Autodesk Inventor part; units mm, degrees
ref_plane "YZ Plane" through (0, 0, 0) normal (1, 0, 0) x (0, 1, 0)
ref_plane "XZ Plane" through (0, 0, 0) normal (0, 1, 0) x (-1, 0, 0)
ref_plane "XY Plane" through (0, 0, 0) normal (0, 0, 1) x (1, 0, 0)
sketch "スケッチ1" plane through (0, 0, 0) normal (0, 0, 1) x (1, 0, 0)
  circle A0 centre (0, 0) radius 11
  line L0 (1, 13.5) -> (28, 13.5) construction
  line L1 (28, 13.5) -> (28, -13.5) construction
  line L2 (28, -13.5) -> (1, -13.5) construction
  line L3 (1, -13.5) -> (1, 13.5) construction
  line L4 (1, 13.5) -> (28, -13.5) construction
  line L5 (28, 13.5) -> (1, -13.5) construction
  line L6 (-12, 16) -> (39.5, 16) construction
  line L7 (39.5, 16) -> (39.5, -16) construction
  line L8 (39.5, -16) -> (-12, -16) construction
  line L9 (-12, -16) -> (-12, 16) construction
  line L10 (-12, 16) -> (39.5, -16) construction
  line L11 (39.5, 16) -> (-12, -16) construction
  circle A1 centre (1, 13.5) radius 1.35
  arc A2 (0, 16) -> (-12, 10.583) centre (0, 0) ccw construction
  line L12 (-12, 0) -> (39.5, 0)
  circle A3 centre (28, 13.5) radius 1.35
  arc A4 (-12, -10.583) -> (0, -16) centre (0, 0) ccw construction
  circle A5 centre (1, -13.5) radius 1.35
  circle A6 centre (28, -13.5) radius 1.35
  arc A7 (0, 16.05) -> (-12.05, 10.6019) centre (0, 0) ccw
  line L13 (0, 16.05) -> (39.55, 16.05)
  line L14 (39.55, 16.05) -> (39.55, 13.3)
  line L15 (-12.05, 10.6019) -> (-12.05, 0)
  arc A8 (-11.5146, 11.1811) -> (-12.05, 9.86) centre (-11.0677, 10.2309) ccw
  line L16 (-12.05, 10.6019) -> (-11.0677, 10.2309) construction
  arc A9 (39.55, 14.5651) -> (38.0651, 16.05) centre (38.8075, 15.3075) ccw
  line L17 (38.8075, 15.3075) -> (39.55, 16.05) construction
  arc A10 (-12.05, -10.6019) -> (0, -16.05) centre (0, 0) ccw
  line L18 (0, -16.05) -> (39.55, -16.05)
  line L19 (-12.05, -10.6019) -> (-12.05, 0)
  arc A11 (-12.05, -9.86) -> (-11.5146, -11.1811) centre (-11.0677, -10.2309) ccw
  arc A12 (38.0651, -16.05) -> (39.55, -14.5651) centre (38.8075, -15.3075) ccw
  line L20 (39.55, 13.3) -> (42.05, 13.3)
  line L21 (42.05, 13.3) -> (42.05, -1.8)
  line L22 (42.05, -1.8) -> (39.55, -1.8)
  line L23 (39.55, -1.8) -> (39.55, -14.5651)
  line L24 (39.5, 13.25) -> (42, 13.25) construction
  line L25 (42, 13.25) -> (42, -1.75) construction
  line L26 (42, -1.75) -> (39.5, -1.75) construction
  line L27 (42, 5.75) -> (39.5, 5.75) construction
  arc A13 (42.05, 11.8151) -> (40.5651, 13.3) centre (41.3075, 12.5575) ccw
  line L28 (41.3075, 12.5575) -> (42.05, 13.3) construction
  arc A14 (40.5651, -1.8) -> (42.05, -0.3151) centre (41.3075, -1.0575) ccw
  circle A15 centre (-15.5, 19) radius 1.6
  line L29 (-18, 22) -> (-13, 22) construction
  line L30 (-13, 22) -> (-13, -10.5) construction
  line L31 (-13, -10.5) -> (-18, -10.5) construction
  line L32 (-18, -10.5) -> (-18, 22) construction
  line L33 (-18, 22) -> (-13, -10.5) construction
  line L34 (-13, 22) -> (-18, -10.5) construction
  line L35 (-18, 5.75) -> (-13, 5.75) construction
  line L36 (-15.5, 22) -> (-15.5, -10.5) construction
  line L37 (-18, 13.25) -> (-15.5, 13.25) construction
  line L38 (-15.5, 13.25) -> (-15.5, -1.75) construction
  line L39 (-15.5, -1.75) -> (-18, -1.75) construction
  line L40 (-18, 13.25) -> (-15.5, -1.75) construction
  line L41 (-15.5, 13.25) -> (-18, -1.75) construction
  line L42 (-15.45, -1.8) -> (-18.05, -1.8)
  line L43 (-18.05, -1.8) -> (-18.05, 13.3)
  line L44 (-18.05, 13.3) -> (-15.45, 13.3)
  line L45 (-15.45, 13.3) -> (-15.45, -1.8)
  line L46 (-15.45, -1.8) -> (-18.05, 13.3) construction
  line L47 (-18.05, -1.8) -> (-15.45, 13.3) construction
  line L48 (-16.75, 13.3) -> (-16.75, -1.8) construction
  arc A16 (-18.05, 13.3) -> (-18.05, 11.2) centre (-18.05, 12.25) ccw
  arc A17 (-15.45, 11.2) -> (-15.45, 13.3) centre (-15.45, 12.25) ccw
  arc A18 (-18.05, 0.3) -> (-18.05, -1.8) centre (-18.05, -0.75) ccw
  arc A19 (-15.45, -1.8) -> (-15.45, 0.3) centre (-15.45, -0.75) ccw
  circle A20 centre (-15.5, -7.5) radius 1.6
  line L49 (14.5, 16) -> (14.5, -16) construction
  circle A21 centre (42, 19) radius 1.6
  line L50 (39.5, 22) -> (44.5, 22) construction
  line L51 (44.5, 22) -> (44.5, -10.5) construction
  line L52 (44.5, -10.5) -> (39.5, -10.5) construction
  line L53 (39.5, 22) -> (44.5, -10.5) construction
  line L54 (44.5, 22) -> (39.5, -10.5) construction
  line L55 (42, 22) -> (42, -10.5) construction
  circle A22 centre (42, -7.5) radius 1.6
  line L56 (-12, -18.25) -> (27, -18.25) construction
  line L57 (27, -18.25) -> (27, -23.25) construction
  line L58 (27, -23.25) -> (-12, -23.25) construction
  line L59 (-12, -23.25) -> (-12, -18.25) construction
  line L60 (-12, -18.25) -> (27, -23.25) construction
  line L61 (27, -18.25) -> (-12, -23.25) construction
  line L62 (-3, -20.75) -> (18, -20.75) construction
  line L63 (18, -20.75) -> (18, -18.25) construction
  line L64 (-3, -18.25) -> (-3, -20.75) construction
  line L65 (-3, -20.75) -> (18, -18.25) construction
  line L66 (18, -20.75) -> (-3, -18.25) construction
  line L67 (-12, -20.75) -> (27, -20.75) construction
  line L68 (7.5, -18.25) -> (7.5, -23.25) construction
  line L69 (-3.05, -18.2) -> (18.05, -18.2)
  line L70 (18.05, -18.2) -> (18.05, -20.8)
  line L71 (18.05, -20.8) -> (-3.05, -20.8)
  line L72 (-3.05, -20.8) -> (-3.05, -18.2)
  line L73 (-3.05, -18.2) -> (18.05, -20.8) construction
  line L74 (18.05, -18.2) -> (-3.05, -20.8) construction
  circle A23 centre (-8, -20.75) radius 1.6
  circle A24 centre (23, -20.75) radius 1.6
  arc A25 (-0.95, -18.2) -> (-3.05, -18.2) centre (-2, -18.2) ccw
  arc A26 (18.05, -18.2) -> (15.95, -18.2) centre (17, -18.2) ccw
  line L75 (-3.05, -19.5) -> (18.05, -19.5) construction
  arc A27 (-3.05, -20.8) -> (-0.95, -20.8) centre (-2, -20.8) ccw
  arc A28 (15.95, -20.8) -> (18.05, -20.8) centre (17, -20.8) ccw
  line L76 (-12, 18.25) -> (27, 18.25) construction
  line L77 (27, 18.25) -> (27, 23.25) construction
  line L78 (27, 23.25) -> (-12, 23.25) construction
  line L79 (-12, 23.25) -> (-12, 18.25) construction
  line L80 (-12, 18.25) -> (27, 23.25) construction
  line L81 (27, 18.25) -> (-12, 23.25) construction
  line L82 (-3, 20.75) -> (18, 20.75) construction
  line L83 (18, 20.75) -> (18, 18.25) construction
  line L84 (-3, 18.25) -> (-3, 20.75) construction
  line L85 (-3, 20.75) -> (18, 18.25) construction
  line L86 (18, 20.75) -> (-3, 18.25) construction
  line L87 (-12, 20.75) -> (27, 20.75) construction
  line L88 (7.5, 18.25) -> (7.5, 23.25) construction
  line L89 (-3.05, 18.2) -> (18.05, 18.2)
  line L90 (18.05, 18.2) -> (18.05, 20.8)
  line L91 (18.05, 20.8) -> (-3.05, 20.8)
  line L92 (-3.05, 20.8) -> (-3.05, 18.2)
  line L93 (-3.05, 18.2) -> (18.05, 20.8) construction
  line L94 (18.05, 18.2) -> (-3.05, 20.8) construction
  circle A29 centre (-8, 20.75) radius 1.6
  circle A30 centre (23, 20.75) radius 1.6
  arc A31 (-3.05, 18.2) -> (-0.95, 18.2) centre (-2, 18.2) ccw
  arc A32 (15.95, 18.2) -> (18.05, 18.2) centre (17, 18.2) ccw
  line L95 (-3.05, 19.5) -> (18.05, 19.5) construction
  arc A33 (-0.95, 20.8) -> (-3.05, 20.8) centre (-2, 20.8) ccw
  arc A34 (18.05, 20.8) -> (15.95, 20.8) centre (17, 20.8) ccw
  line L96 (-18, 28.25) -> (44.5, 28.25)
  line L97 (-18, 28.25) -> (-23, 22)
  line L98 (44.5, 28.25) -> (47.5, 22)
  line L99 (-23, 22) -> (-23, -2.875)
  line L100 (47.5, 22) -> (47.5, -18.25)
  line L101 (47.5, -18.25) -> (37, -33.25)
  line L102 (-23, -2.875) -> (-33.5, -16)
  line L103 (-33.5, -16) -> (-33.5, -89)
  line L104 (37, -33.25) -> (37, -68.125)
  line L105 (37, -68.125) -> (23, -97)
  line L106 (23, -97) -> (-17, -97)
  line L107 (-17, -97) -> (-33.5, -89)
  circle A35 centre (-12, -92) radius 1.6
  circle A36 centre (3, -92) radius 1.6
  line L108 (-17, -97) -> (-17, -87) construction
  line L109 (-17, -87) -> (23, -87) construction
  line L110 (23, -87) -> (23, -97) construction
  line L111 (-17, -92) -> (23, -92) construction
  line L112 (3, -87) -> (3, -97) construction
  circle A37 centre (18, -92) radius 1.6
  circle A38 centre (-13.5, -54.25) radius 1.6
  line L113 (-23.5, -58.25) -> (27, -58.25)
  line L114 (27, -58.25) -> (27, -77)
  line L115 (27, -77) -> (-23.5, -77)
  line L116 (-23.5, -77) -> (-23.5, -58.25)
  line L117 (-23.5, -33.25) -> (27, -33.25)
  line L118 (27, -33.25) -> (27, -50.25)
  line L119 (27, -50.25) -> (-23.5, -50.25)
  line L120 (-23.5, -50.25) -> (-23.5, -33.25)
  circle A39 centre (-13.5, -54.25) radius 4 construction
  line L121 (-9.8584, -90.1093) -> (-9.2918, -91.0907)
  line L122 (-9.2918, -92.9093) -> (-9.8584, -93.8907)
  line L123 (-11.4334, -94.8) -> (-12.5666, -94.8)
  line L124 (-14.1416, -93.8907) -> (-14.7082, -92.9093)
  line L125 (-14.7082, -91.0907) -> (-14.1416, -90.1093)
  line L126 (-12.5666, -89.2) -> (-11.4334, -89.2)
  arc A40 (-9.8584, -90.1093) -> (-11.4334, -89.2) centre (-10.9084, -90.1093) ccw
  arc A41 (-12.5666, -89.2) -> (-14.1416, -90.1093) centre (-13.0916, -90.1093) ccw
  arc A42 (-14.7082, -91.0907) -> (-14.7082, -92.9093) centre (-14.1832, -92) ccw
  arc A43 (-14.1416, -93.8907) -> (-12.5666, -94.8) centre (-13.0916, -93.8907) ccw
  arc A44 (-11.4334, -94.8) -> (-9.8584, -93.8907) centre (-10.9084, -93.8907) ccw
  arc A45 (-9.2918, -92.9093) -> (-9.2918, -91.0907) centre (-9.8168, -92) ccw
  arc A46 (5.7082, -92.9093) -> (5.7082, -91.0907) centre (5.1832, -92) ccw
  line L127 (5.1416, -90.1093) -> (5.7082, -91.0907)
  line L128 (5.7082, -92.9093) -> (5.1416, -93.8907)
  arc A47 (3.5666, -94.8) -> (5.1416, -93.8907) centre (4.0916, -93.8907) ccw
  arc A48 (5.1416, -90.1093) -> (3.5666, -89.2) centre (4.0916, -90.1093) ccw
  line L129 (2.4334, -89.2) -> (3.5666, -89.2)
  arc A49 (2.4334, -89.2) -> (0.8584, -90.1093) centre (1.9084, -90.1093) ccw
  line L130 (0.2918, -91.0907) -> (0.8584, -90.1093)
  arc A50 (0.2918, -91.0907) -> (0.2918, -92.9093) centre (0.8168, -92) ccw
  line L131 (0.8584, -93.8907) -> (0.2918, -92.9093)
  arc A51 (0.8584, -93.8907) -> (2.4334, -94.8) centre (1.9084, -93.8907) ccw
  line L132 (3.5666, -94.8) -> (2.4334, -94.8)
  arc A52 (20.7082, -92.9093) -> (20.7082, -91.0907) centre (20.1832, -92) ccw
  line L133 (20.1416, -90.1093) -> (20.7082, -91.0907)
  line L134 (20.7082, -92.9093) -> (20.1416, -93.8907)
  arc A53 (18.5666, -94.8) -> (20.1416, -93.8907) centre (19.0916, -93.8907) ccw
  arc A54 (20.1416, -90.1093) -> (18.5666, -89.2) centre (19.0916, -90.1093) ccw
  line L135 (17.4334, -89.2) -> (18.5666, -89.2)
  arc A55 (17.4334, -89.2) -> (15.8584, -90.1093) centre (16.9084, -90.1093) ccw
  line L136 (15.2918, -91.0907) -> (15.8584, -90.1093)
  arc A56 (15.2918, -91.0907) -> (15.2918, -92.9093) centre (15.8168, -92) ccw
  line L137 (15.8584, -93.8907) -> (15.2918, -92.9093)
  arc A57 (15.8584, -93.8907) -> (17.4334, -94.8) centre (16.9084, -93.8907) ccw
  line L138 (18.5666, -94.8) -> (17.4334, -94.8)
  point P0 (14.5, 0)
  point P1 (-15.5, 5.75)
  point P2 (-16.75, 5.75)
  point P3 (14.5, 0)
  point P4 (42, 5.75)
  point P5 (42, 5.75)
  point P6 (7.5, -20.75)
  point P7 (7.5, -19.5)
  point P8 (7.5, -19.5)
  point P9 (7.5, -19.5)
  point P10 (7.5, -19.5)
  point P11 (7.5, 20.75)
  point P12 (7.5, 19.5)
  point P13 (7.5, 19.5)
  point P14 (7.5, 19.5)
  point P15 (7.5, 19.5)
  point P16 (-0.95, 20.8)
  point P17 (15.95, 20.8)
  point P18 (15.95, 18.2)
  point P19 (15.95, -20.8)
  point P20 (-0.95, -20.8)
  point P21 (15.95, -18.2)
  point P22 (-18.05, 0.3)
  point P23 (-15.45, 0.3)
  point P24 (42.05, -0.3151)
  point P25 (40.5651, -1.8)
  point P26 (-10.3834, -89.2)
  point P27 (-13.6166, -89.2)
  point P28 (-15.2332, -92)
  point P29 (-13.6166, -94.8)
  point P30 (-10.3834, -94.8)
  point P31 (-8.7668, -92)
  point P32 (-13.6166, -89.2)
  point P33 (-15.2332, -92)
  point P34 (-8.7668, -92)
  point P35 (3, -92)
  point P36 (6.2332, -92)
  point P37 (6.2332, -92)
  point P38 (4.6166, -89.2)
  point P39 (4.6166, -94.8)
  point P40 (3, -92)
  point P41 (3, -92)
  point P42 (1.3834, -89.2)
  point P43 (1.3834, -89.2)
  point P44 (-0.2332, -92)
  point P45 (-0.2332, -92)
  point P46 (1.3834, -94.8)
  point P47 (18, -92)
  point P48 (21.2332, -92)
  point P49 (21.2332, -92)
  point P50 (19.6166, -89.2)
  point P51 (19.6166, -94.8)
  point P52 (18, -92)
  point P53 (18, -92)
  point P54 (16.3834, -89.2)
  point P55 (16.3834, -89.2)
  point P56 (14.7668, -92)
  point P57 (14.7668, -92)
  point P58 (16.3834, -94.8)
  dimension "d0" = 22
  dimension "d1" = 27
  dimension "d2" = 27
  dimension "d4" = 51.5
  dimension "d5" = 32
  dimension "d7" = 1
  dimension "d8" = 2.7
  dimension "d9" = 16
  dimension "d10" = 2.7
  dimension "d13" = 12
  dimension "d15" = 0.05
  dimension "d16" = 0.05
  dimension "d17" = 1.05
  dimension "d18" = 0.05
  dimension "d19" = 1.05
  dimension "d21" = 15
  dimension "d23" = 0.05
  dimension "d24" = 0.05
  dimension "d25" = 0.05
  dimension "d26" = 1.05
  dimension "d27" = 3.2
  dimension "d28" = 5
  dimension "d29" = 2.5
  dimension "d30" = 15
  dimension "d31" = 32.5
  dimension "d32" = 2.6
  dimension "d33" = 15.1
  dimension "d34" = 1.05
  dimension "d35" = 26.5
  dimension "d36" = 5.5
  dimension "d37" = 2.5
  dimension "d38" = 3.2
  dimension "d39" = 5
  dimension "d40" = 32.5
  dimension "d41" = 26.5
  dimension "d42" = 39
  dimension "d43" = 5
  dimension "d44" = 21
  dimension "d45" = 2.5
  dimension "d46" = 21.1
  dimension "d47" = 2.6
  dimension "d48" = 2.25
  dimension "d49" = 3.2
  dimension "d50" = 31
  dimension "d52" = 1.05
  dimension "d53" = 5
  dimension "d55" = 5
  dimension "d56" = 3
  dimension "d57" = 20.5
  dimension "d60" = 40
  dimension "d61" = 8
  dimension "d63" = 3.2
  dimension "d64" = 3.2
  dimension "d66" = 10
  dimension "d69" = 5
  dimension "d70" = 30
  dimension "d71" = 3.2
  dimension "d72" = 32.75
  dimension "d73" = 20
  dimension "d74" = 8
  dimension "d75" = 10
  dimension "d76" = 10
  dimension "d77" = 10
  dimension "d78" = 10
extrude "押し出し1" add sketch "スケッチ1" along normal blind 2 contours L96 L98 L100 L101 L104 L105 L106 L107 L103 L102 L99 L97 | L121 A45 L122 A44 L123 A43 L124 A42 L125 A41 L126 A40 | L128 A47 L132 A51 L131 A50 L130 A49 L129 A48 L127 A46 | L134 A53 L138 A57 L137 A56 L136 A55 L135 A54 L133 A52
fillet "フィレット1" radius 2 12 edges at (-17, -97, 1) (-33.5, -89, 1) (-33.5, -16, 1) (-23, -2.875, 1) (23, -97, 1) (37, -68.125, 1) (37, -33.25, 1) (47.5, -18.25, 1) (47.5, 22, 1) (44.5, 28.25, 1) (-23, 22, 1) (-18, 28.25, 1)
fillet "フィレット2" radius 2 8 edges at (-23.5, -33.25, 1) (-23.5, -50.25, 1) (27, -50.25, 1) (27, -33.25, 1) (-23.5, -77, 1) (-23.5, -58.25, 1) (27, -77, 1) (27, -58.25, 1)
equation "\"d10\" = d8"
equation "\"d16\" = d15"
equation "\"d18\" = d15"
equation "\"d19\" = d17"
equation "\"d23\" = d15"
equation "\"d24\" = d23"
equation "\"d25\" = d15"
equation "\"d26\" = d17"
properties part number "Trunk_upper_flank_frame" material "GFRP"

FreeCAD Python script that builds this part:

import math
import FreeCAD as App
import Part
import Sketcher
Q = App.Units.Quantity


def edges_at(feature, points):
    """Names of the edges that pass closest to the given points."""
    edges = feature.Shape.Edges
    near = lambda p: min(range(len(edges)), key=lambda i: edges[i].distToShape(Part.Vertex(*p))[0])
    return sorted({f"Edge{near(p) + 1}" for p in points})


def add_polygon(sketch, points):
    """Adds a closed chain of lines whose ends are joined by coincident constraints."""
    first, n = sketch.GeometryCount, len(points)
    for a, b in zip(points, points[1:] + points[:1]):
        sketch.addGeometry(Part.LineSegment(App.Vector(*a, 0), App.Vector(*b, 0)), False)
    for i in range(n):
        sketch.addConstraint(Sketcher.Constraint("Coincident", first + i, 2, first + (i + 1) % n, 1))

doc = App.newDocument("Part")
body = doc.addObject("PartDesign::Body", "Body")

# Sketch on XY plane
sketch1 = doc.addObject("Sketcher::SketchObject", "Sketch")
body.addObject(sketch1)
sketch1.AttachmentSupport = (doc.XY_Plane, [""])
sketch1.MapMode = "FlatFace"
add_polygon(sketch1, [(44.5, 28.2), (-18, 28.2), (-23, 22), (-23, -2.9), (-33.5, -16), (-33.5, -89), (-17, -97), (23, -97), (37, -68.1), (37, -33.2), (47.5, -18.2), (47.5, 22)])  # lines 0-11
add_polygon(sketch1, [(-23.5, -77), (-23.5, -58.2), (27, -58.2), (27, -77)])  # lines 12-15
sketch1.addGeometry(Part.Circle(App.Vector(-13.5, -54.2, 0), App.Vector(0, 0, 1), 1.6), False)  # 16
add_polygon(sketch1, [(-23.5, -50.2), (-23.5, -33.2), (27, -33.2), (27, -50.2)])  # lines 17-20
sketch1.addGeometry(Part.Circle(App.Vector(-15.5, -7.5, 0), App.Vector(0, 0, 1), 1.6), False)  # 21
sketch1.addGeometry(Part.Circle(App.Vector(-8, -20.8, 0), App.Vector(0, 0, 1), 1.6), False)  # 22
sketch1.addGeometry(Part.ArcOfCircle(Part.Circle(App.Vector(-15.4, -0.8, 0), App.Vector(0, 0, 1), 1.1), math.radians(-90), math.radians(90)), False)  # 23
sketch1.addGeometry(Part.LineSegment(App.Vector(-15.4, -1.8, 0), App.Vector(-18.1, -1.8, 0)), False)  # 24
sketch1.addGeometry(Part.ArcOfCircle(Part.Circle(App.Vector(-18.1, -0.8, 0), App.Vector(0, 0, 1), 1.1), math.radians(90), math.radians(270)), False)  # 25
sketch1.addGeometry(Part.LineSegment(App.Vector(-18.1, 0.3, 0), App.Vector(-18.1, 11.2, 0)), False)  # 26
sketch1.addGeometry(Part.ArcOfCircle(Part.Circle(App.Vector(-18.1, 12.2, 0), App.Vector(0, 0, 1), 1.1), math.radians(90), math.radians(270)), False)  # 27
sketch1.addGeometry(Part.LineSegment(App.Vector(-18.1, 13.3, 0), App.Vector(-15.4, 13.3, 0)), False)  # 28
sketch1.addGeometry(Part.ArcOfCircle(Part.Circle(App.Vector(-15.4, 12.2, 0), App.Vector(0, 0, 1), 1.1), math.radians(-90), math.radians(90)), False)  # 29
sketch1.addGeometry(Part.LineSegment(App.Vector(-15.4, 11.2, 0), App.Vector(-15.4, 0.3, 0)), False)  # 30
sketch1.addGeometry(Part.Circle(App.Vector(-15.5, 19, 0), App.Vector(0, 0, 1), 1.6), False)  # 31
sketch1.addGeometry(Part.Circle(App.Vector(-8, 20.8, 0), App.Vector(0, 0, 1), 1.6), False)  # 32
sketch1.addGeometry(Part.LineSegment(App.Vector(-3, -20.8, 0), App.Vector(-3, -18.2, 0)), False)  # 33
sketch1.addGeometry(Part.ArcOfCircle(Part.Circle(App.Vector(-2, -18.2, 0), App.Vector(0, 0, 1), 1.1), math.radians(0), math.radians(180)), False)  # 34
sketch1.addGeometry(Part.LineSegment(App.Vector(-0.9, -18.2, 0), App.Vector(15.9, -18.2, 0)), False)  # 35
sketch1.addGeometry(Part.ArcOfCircle(Part.Circle(App.Vector(17, -18.2, 0), App.Vector(0, 0, 1), 1.1), math.radians(0), math.radians(180)), False)  # 36
sketch1.addGeometry(Part.LineSegment(App.Vector(18.1, -18.2, 0), App.Vector(18.1, -20.8, 0)), False)  # 37
sketch1.addGeometry(Part.ArcOfCircle(Part.Circle(App.Vector(17, -20.8, 0), App.Vector(0, 0, 1), 1.1), math.radians(180), math.radians(360)), False)  # 38
sketch1.addGeometry(Part.LineSegment(App.Vector(15.9, -20.8, 0), App.Vector(-0.9, -20.8, 0)), False)  # 39
sketch1.addGeometry(Part.ArcOfCircle(Part.Circle(App.Vector(-2, -20.8, 0), App.Vector(0, 0, 1), 1), math.radians(180), math.radians(360)), False)  # 40
sketch1.addGeometry(Part.Circle(App.Vector(23, -20.8, 0), App.Vector(0, 0, 1), 1.6), False)  # 41
sketch1.addGeometry(Part.Circle(App.Vector(42, -7.5, 0), App.Vector(0, 0, 1), 1.6), False)  # 42
sketch1.addGeometry(Part.ArcOfCircle(Part.Circle(App.Vector(0, 0, 0), App.Vector(0, 0, 1), 16.1), math.radians(90), math.radians(136)), False)  # 43
sketch1.addGeometry(Part.LineSegment(App.Vector(0, 16.1, 0), App.Vector(38.1, 16.1, 0)), False)  # 44
sketch1.addGeometry(Part.ArcOfCircle(Part.Circle(App.Vector(38.8, 15.3, 0), App.Vector(0, 0, 1), 1), math.radians(-45), math.radians(135)), False)  # 45
sketch1.addGeometry(Part.LineSegment(App.Vector(39.5, 14.6, 0), App.Vector(39.5, 13.3, 0)), False)  # 46
sketch1.addGeometry(Part.LineSegment(App.Vector(39.5, 13.3, 0), App.Vector(40.6, 13.3, 0)), False)  # 47
sketch1.addGeometry(Part.ArcOfCircle(Part.Circle(App.Vector(41.3, 12.6, 0), App.Vector(0, 0, 1), 1), math.radians(-45), math.radians(135)), False)  # 48
sketch1.addGeometry(Part.LineSegment(App.Vector(42, 11.8, 0), App.Vector(42, -0.3, 0)), False)  # 49
sketch1.addGeometry(Part.ArcOfCircle(Part.Circle(App.Vector(41.3, -1.1, 0), App.Vector(0, 0, 1), 1), math.radians(-135), math.radians(45)), False)  # 50
sketch1.addGeometry(Part.LineSegment(App.Vector(40.6, -1.8, 0), App.Vector(39.5, -1.8, 0)), False)  # 51
sketch1.addGeometry(Part.LineSegment(App.Vector(39.5, -1.8, 0), App.Vector(39.5, -14.6, 0)), False)  # 52
sketch1.addGeometry(Part.ArcOfCircle(Part.Circle(App.Vector(38.8, -15.3, 0), App.Vector(0, 0, 1), 1), math.radians(-135), math.radians(45)), False)  # 53
sketch1.addGeometry(Part.LineSegment(App.Vector(38.1, -16.1, 0), App.Vector(0, -16.1, 0)), False)  # 54
sketch1.addGeometry(Part.ArcOfCircle(Part.Circle(App.Vector(0, 0, 0), App.Vector(0, 0, 1), 16.1), math.radians(-136), math.radians(-90)), False)  # 55
sketch1.addGeometry(Part.ArcOfCircle(Part.Circle(App.Vector(-11.1, -10.2, 0), App.Vector(0, 0, 1), 1), math.radians(159), math.radians(245)), False)  # 56
sketch1.addGeometry(Part.LineSegment(App.Vector(-12.1, -9.9, 0), App.Vector(-12.1, 9.9, 0)), False)  # 57
sketch1.addGeometry(Part.ArcOfCircle(Part.Circle(App.Vector(-11.1, 10.2, 0), App.Vector(0, 0, 1), 1.1), math.radians(115), math.radians(201)), False)  # 58
sketch1.addGeometry(Part.ArcOfCircle(Part.Circle(App.Vector(-2, 18.2, 0), App.Vector(0, 0, 1), 1), math.radians(180), math.radians(360)), False)  # 59
sketch1.addGeometry(Part.LineSegment(App.Vector(-3, 18.2, 0), App.Vector(-3, 20.8, 0)), False)  # 60
sketch1.addGeometry(Part.ArcOfCircle(Part.Circle(App.Vector(-2, 20.8, 0), App.Vector(0, 0, 1), 1.1), math.radians(0), math.radians(180)), False)  # 61
sketch1.addGeometry(Part.LineSegment(App.Vector(-0.9, 20.8, 0), App.Vector(15.9, 20.8, 0)), False)  # 62
sketch1.addGeometry(Part.ArcOfCircle(Part.Circle(App.Vector(17, 20.8, 0), App.Vector(0, 0, 1), 1.1), math.radians(0), math.radians(180)), False)  # 63
sketch1.addGeometry(Part.LineSegment(App.Vector(18.1, 20.8, 0), App.Vector(18.1, 18.2, 0)), False)  # 64
sketch1.addGeometry(Part.ArcOfCircle(Part.Circle(App.Vector(17, 18.2, 0), App.Vector(0, 0, 1), 1.1), math.radians(180), math.radians(360)), False)  # 65
sketch1.addGeometry(Part.LineSegment(App.Vector(15.9, 18.2, 0), App.Vector(-0.9, 18.2, 0)), False)  # 66
sketch1.addGeometry(Part.Circle(App.Vector(23, 20.8, 0), App.Vector(0, 0, 1), 1.6), False)  # 67
sketch1.addGeometry(Part.Circle(App.Vector(42, 19, 0), App.Vector(0, 0, 1), 1.6), False)  # 68
sketch1.addGeometry(Part.Circle(App.Vector(-12, -92, 0), App.Vector(0, 0, 1), 1.6), False)  # 69
sketch1.addGeometry(Part.Circle(App.Vector(3, -92, 0), App.Vector(0, 0, 1), 1.6), False)  # 70
sketch1.addGeometry(Part.Circle(App.Vector(18, -92, 0), App.Vector(0, 0, 1), 1.6), False)  # 71
sketch1.addConstraint([
    Sketcher.Constraint("Tangent", 23, 1, 24, 1),
    Sketcher.Constraint("Tangent", 24, 2, 25, 2),
    Sketcher.Constraint("Coincident", 25, 1, 26, 1),
    Sketcher.Constraint("Coincident", 26, 2, 27, 2),
    Sketcher.Constraint("Tangent", 27, 1, 28, 1),
    Sketcher.Constraint("Tangent", 28, 2, 29, 2),
    Sketcher.Constraint("Coincident", 29, 1, 30, 1),
    Sketcher.Constraint("Coincident", 30, 2, 23, 2),
    Sketcher.Constraint("Tangent", 33, 2, 34, 2),
    Sketcher.Constraint("Coincident", 34, 1, 35, 1),
    Sketcher.Constraint("Coincident", 35, 2, 36, 2),
    Sketcher.Constraint("Tangent", 36, 1, 37, 1),
    Sketcher.Constraint("Tangent", 37, 2, 38, 2),
    Sketcher.Constraint("Coincident", 38, 1, 39, 1),
    Sketcher.Constraint("Coincident", 39, 2, 40, 2),
    Sketcher.Constraint("Tangent", 40, 1, 33, 1),
    Sketcher.Constraint("Tangent", 43, 1, 44, 1),
    Sketcher.Constraint("Coincident", 44, 2, 45, 2),
    Sketcher.Constraint("Coincident", 45, 1, 46, 1),
    Sketcher.Constraint("Coincident", 46, 2, 47, 1),
    Sketcher.Constraint("Coincident", 47, 2, 48, 2),
    Sketcher.Constraint("Coincident", 48, 1, 49, 1),
    Sketcher.Constraint("Coincident", 49, 2, 50, 2),
    Sketcher.Constraint("Coincident", 50, 1, 51, 1),
    Sketcher.Constraint("Coincident", 51, 2, 52, 1),
    Sketcher.Constraint("Coincident", 52, 2, 53, 2),
    Sketcher.Constraint("Coincident", 53, 1, 54, 1),
    Sketcher.Constraint("Tangent", 54, 2, 55, 2),
    Sketcher.Constraint("Coincident", 55, 1, 56, 2),
    Sketcher.Constraint("Coincident", 56, 1, 57, 1),
    Sketcher.Constraint("Coincident", 57, 2, 58, 2),
    Sketcher.Constraint("Coincident", 58, 1, 43, 2),
    Sketcher.Constraint("Tangent", 59, 1, 60, 1),
    Sketcher.Constraint("Tangent", 60, 2, 61, 2),
    Sketcher.Constraint("Coincident", 61, 1, 62, 1),
    Sketcher.Constraint("Coincident", 62, 2, 63, 2),
    Sketcher.Constraint("Tangent", 63, 1, 64, 1),
    Sketcher.Constraint("Tangent", 64, 2, 65, 2),
    Sketcher.Constraint("Coincident", 65, 1, 66, 1),
    Sketcher.Constraint("Coincident", 66, 2, 59, 2),
    Sketcher.Constraint("Horizontal", 0),
    Sketcher.Constraint("Vertical", 2),
    Sketcher.Constraint("Vertical", 4),
    Sketcher.Constraint("Horizontal", 6),
    Sketcher.Constraint("Vertical", 8),
    Sketcher.Constraint("Vertical", 10),
    Sketcher.Constraint("Vertical", 12),
    Sketcher.Constraint("Horizontal", 13),
    Sketcher.Constraint("Vertical", 14),
    Sketcher.Constraint("Horizontal", 15),
    Sketcher.Constraint("Vertical", 17),
    Sketcher.Constraint("Horizontal", 18),
    Sketcher.Constraint("Vertical", 19),
    Sketcher.Constraint("Horizontal", 20),
    Sketcher.Constraint("Horizontal", 24),
    Sketcher.Constraint("Vertical", 26),
    Sketcher.Constraint("Horizontal", 28),
    Sketcher.Constraint("Vertical", 30),
    Sketcher.Constraint("Vertical", 33),
    Sketcher.Constraint("Horizontal", 35),
    Sketcher.Constraint("Vertical", 37),
    Sketcher.Constraint("Horizontal", 39),
    Sketcher.Constraint("Horizontal", 44),
    Sketcher.Constraint("Vertical", 46),
    Sketcher.Constraint("Horizontal", 47),
    Sketcher.Constraint("Vertical", 49),
    Sketcher.Constraint("Horizontal", 51),
    Sketcher.Constraint("Vertical", 52),
    Sketcher.Constraint("Horizontal", 54),
    Sketcher.Constraint("Vertical", 57),
    Sketcher.Constraint("Vertical", 60),
    Sketcher.Constraint("Horizontal", 62),
    Sketcher.Constraint("Vertical", 64),
    Sketcher.Constraint("Horizontal", 66),
    Sketcher.Constraint("Coincident", 43, 3, -1, 1),
    Sketcher.Constraint("Coincident", 55, 3, -1, 1),
    Sketcher.Constraint("Equal", 16, 21),
    Sketcher.Constraint("Equal", 21, 22),
    Sketcher.Constraint("Equal", 23, 25),
    Sketcher.Constraint("Equal", 25, 27),
    Sketcher.Constraint("Equal", 27, 29),
    Sketcher.Constraint("Equal", 22, 31),
    Sketcher.Constraint("Equal", 31, 32),
    Sketcher.Constraint("Equal", 29, 34),
    Sketcher.Constraint("Equal", 34, 36),
    Sketcher.Constraint("Equal", 36, 38),
    Sketcher.Constraint("Equal", 38, 40),
    Sketcher.Constraint("Equal", 32, 41),
    Sketcher.Constraint("Equal", 41, 42),
    Sketcher.Constraint("Equal", 40, 45),
    Sketcher.Constraint("Equal", 45, 48),
    Sketcher.Constraint("Equal", 48, 50),
    Sketcher.Constraint("Equal", 50, 53),
    Sketcher.Constraint("Equal", 43, 55),
    Sketcher.Constraint("Equal", 53, 56),
    Sketcher.Constraint("Equal", 56, 58),
    Sketcher.Constraint("Equal", 58, 59),
    Sketcher.Constraint("Equal", 59, 61),
    Sketcher.Constraint("Equal", 61, 63),
    Sketcher.Constraint("Equal", 63, 65),
    Sketcher.Constraint("Equal", 42, 67),
    Sketcher.Constraint("Equal", 67, 68),
    Sketcher.Constraint("Equal", 68, 69),
    Sketcher.Constraint("Equal", 69, 70),
    Sketcher.Constraint("Equal", 70, 71),
    Sketcher.Constraint("Symmetric", 22, 3, 32, 3, -1),
    Sketcher.Constraint("Symmetric", 45, 3, 53, 3, -1),
    Sketcher.Constraint("Symmetric", 56, 3, 58, 3, -1),
    Sketcher.Constraint("Symmetric", 34, 3, 59, 3, -1),
    Sketcher.Constraint("Symmetric", 38, 3, 63, 3, -1),
    Sketcher.Constraint("Symmetric", 41, 3, 67, 3, -1),
    Sketcher.Constraint("Parallel", 1, 3),
    Sketcher.Constraint("Perpendicular", 5, 7),
    Sketcher.Constraint("Horizontal", 34, 3, 36, 3),
    Sketcher.Constraint("Horizontal", 38, 3, 40, 3),
    Sketcher.Constraint("Horizontal", 22, 3, 41, 3),
    Sketcher.Constraint("Horizontal", 21, 3, 42, 3),
    Sketcher.Constraint("Horizontal", 61, 3, 63, 3),
    Sketcher.Constraint("Horizontal", 59, 3, 65, 3),
    Sketcher.Constraint("Horizontal", 31, 3, 68, 3),
    Sketcher.Constraint("Horizontal", 69, 3, 70, 3),
    Sketcher.Constraint("Horizontal", 70, 3, 71, 3),
    Sketcher.Constraint("Horizontal", 1, 2, 10, 2),
    Sketcher.Constraint("Horizontal", 8, 2, 17, 2),
    Sketcher.Constraint("Horizontal", 33, 2, 34, 1),
    Sketcher.Constraint("Horizontal", 37, 2, 38, 1),
    Sketcher.Constraint("Horizontal", 28, 2, 46, 2),
    Sketcher.Constraint("Horizontal", 24, 2, 50, 1),
    Sketcher.Constraint("Horizontal", 60, 2, 61, 1),
    Sketcher.Constraint("Horizontal", 64, 2, 65, 1),
    Sketcher.Constraint("Vertical", 25, 3, 27, 3),
    Sketcher.Constraint("Vertical", 23, 3, 29, 3),
    Sketcher.Constraint("Vertical", 21, 3, 31, 3),
    Sketcher.Constraint("Vertical", 48, 3, 50, 3),
    Sketcher.Constraint("Vertical", 42, 3, 68, 3),
    Sketcher.Constraint("Vertical", 67, 3, 6, 2),
    Sketcher.Constraint("Vertical", 15, 2, 17, 2),
    Sketcher.Constraint("Vertical", 14, 2, 18, 2),
    Sketcher.Constraint("Vertical", 24, 2, 25, 1),
    Sketcher.Constraint("Vertical", 28, 2, 29, 1),
    Sketcher.Constraint("Vertical", 47, 2, 50, 1),
    Sketcher.Constraint("Vertical", 46, 2, 51, 2),
    Sketcher.Constraint("Equal", 28, 33),
    Sketcher.Constraint("Diameter", 16, Q("3.2 mm")),
    Sketcher.Constraint("DistanceX", 6, 1, 6, 2, Q("40 mm")),
    Sketcher.Constraint("Radius", 23, Q("1.05 mm")),
    Sketcher.Constraint("DistanceX", 24, 2, 24, 1, Q("2.6 mm")),
    Sketcher.Constraint("DistanceX", 22, 3, -1, 1, Q("8 mm")),
    Sketcher.Constraint("DistanceX", 69, 3, -1, 1, Q("12 mm")),
    Sketcher.Constraint("DistanceX", -1, 1, 70, 3, Q("3 mm")),
    Sketcher.Constraint("DistanceY", -1, 1, 1, 2, Q("22 mm")),
    Sketcher.Constraint("DistanceY", 3, 2, -1, 1, Q("16 mm")),
    Sketcher.Constraint("DistanceX", -1, 1, 13, 2, Q("27 mm")),
    Sketcher.Constraint("DistanceY", 4, 2, 4, 1, Q("73 mm")),
    Sketcher.Constraint("DistanceY", 17, 1, 17, 2, Q("17 mm")),
    Sketcher.Constraint("Radius", 43, Q("16.05 mm")),
    Sketcher.Constraint("DistanceX", 0, 2, 0, 1, Q("62.5 mm")),
    Sketcher.Constraint("DistanceX", 13, 1, 13, 2, Q("50.5 mm")),
    Sketcher.Constraint("DistanceX", 35, 1, 35, 2, Q("16.9 mm")),
    Sketcher.Constraint("DistanceY", 26, 1, 26, 2, Q("10.9 mm")),
    Sketcher.Constraint("DistanceY", -1, 1, 31, 3, Q("19 mm")),
    Sketcher.Constraint("DistanceX", 34, 3, -1, 1, Q("2 mm")),
    Sketcher.Constraint("DistanceX", -1, 1, 41, 3, Q("23 mm")),
    Sketcher.Constraint("DistanceX", -1, 1, 42, 3, Q("42 mm")),
    Sketcher.Constraint("DistanceY", 69, 3, -1, 1, Q("92 mm")),
    Sketcher.Constraint("DistanceX", -1, 1, 71, 3, Q("18 mm")),
    Sketcher.Constraint("DistanceX", 0, 2, -1, 1, Q("18 mm")),
    Sketcher.Constraint("DistanceX", 1, 2, -1, 1, Q("23 mm")),
    Sketcher.Constraint("DistanceY", 5, 2, -1, 1, Q("97 mm")),
    Sketcher.Constraint("DistanceX", -1, 1, 7, 2, Q("37 mm")),
    Sketcher.Constraint("DistanceY", 14, 2, -1, 1, Q("77 mm")),
    Sketcher.Constraint("DistanceY", 10, 1, 10, 2, Q("40.25 mm")),
    Sketcher.Constraint("DistanceY", 12, 1, 12, 2, Q("18.75 mm")),
    Sketcher.Constraint("DistanceY", 57, 1, 57, 2, Q("19.72 mm")),
    Sketcher.Constraint("DistanceX", 16, 3, -1, 1, Q("13.5 mm")),
    Sketcher.Constraint("DistanceX", 21, 3, -1, 1, Q("15.5 mm")),
    Sketcher.Constraint("DistanceY", 21, 3, -1, 1, Q("7.5 mm")),
    Sketcher.Constraint("DistanceY", 34, 3, -1, 1, Q("18.2 mm")),
    Sketcher.Constraint("DistanceX", 3, 2, -1, 1, Q("33.5 mm")),
    Sketcher.Constraint("DistanceX", -1, 1, 9, 2, Q("47.5 mm")),
    Sketcher.Constraint("DistanceY", 23, 1, -1, 1, Q("1.8 mm")),
    Sketcher.Constraint("Angle", 1, Q("-128.6598 deg")),
    Sketcher.Constraint("DistanceX", 44, 1, 44, 2, Q("38.065 mm")),
    Sketcher.Constraint("DistanceX", 47, 1, 47, 2, Q("1.015 mm")),
    Sketcher.Constraint("DistanceY", 8, 1, 8, 2, Q("34.875 mm")),
    Sketcher.Constraint("DistanceY", 46, 2, 46, 1, Q("1.265 mm")),
    Sketcher.Constraint("DistanceY", 16, 3, -1, 1, Q("54.25 mm")),
    Sketcher.Constraint("DistanceY", 22, 3, -1, 1, Q("20.75 mm")),
    Sketcher.Constraint("DistanceX", 23, 3, -1, 1, Q("15.45 mm")),
    Sketcher.Constraint("DistanceX", -1, 1, 48, 1, Q("42.05 mm")),
    Sketcher.Constraint("DistanceX", 56, 1, -1, 1, Q("12.05 mm")),
    Sketcher.Constraint("DistanceY", 56, 3, -1, 1, Q("10.231 mm")),
    Sketcher.Constraint("DistanceX", -1, 1, 45, 3, Q("38.8075 mm")),
    Sketcher.Constraint("DistanceX", -1, 1, 48, 3, Q("41.3075 mm")),
])
pad1 = doc.addObject("PartDesign::Pad", "Pad")
body.addObject(pad1)
pad1.Profile = sketch1
pad1.Length = 2
doc.recompute()

fillet = doc.addObject("PartDesign::Fillet", "Fillet")
body.addObject(fillet)
fillet.Base = (pad1, edges_at(pad1, [
    (-17, -97, 1),
    (-33.5, -89, 1),
    (-33.5, -16, 1),
    (-23, -2.875, 1),
    (23, -97, 1),
    (37, -68.125, 1),
    (37, -33.25, 1),
    (47.5, -18.25, 1),
    (47.5, 22, 1),
    (44.5, 28.25, 1),
    (-23, 22, 1),
    (-18, 28.25, 1),
]))
fillet.Radius = 2
doc.recompute()

fillet2 = doc.addObject("PartDesign::Fillet", "Fillet001")
body.addObject(fillet2)
fillet2.Base = (fillet, edges_at(fillet, [
    (-23.5, -33.25, 1),
    (-23.5, -50.25, 1),
    (27, -50.25, 1),
    (27, -33.25, 1),
    (-23.5, -77, 1),
    (-23.5, -58.25, 1),
    (27, -77, 1),
    (27, -58.25, 1),
]))
fillet2.Radius = 2

doc.recompute()
